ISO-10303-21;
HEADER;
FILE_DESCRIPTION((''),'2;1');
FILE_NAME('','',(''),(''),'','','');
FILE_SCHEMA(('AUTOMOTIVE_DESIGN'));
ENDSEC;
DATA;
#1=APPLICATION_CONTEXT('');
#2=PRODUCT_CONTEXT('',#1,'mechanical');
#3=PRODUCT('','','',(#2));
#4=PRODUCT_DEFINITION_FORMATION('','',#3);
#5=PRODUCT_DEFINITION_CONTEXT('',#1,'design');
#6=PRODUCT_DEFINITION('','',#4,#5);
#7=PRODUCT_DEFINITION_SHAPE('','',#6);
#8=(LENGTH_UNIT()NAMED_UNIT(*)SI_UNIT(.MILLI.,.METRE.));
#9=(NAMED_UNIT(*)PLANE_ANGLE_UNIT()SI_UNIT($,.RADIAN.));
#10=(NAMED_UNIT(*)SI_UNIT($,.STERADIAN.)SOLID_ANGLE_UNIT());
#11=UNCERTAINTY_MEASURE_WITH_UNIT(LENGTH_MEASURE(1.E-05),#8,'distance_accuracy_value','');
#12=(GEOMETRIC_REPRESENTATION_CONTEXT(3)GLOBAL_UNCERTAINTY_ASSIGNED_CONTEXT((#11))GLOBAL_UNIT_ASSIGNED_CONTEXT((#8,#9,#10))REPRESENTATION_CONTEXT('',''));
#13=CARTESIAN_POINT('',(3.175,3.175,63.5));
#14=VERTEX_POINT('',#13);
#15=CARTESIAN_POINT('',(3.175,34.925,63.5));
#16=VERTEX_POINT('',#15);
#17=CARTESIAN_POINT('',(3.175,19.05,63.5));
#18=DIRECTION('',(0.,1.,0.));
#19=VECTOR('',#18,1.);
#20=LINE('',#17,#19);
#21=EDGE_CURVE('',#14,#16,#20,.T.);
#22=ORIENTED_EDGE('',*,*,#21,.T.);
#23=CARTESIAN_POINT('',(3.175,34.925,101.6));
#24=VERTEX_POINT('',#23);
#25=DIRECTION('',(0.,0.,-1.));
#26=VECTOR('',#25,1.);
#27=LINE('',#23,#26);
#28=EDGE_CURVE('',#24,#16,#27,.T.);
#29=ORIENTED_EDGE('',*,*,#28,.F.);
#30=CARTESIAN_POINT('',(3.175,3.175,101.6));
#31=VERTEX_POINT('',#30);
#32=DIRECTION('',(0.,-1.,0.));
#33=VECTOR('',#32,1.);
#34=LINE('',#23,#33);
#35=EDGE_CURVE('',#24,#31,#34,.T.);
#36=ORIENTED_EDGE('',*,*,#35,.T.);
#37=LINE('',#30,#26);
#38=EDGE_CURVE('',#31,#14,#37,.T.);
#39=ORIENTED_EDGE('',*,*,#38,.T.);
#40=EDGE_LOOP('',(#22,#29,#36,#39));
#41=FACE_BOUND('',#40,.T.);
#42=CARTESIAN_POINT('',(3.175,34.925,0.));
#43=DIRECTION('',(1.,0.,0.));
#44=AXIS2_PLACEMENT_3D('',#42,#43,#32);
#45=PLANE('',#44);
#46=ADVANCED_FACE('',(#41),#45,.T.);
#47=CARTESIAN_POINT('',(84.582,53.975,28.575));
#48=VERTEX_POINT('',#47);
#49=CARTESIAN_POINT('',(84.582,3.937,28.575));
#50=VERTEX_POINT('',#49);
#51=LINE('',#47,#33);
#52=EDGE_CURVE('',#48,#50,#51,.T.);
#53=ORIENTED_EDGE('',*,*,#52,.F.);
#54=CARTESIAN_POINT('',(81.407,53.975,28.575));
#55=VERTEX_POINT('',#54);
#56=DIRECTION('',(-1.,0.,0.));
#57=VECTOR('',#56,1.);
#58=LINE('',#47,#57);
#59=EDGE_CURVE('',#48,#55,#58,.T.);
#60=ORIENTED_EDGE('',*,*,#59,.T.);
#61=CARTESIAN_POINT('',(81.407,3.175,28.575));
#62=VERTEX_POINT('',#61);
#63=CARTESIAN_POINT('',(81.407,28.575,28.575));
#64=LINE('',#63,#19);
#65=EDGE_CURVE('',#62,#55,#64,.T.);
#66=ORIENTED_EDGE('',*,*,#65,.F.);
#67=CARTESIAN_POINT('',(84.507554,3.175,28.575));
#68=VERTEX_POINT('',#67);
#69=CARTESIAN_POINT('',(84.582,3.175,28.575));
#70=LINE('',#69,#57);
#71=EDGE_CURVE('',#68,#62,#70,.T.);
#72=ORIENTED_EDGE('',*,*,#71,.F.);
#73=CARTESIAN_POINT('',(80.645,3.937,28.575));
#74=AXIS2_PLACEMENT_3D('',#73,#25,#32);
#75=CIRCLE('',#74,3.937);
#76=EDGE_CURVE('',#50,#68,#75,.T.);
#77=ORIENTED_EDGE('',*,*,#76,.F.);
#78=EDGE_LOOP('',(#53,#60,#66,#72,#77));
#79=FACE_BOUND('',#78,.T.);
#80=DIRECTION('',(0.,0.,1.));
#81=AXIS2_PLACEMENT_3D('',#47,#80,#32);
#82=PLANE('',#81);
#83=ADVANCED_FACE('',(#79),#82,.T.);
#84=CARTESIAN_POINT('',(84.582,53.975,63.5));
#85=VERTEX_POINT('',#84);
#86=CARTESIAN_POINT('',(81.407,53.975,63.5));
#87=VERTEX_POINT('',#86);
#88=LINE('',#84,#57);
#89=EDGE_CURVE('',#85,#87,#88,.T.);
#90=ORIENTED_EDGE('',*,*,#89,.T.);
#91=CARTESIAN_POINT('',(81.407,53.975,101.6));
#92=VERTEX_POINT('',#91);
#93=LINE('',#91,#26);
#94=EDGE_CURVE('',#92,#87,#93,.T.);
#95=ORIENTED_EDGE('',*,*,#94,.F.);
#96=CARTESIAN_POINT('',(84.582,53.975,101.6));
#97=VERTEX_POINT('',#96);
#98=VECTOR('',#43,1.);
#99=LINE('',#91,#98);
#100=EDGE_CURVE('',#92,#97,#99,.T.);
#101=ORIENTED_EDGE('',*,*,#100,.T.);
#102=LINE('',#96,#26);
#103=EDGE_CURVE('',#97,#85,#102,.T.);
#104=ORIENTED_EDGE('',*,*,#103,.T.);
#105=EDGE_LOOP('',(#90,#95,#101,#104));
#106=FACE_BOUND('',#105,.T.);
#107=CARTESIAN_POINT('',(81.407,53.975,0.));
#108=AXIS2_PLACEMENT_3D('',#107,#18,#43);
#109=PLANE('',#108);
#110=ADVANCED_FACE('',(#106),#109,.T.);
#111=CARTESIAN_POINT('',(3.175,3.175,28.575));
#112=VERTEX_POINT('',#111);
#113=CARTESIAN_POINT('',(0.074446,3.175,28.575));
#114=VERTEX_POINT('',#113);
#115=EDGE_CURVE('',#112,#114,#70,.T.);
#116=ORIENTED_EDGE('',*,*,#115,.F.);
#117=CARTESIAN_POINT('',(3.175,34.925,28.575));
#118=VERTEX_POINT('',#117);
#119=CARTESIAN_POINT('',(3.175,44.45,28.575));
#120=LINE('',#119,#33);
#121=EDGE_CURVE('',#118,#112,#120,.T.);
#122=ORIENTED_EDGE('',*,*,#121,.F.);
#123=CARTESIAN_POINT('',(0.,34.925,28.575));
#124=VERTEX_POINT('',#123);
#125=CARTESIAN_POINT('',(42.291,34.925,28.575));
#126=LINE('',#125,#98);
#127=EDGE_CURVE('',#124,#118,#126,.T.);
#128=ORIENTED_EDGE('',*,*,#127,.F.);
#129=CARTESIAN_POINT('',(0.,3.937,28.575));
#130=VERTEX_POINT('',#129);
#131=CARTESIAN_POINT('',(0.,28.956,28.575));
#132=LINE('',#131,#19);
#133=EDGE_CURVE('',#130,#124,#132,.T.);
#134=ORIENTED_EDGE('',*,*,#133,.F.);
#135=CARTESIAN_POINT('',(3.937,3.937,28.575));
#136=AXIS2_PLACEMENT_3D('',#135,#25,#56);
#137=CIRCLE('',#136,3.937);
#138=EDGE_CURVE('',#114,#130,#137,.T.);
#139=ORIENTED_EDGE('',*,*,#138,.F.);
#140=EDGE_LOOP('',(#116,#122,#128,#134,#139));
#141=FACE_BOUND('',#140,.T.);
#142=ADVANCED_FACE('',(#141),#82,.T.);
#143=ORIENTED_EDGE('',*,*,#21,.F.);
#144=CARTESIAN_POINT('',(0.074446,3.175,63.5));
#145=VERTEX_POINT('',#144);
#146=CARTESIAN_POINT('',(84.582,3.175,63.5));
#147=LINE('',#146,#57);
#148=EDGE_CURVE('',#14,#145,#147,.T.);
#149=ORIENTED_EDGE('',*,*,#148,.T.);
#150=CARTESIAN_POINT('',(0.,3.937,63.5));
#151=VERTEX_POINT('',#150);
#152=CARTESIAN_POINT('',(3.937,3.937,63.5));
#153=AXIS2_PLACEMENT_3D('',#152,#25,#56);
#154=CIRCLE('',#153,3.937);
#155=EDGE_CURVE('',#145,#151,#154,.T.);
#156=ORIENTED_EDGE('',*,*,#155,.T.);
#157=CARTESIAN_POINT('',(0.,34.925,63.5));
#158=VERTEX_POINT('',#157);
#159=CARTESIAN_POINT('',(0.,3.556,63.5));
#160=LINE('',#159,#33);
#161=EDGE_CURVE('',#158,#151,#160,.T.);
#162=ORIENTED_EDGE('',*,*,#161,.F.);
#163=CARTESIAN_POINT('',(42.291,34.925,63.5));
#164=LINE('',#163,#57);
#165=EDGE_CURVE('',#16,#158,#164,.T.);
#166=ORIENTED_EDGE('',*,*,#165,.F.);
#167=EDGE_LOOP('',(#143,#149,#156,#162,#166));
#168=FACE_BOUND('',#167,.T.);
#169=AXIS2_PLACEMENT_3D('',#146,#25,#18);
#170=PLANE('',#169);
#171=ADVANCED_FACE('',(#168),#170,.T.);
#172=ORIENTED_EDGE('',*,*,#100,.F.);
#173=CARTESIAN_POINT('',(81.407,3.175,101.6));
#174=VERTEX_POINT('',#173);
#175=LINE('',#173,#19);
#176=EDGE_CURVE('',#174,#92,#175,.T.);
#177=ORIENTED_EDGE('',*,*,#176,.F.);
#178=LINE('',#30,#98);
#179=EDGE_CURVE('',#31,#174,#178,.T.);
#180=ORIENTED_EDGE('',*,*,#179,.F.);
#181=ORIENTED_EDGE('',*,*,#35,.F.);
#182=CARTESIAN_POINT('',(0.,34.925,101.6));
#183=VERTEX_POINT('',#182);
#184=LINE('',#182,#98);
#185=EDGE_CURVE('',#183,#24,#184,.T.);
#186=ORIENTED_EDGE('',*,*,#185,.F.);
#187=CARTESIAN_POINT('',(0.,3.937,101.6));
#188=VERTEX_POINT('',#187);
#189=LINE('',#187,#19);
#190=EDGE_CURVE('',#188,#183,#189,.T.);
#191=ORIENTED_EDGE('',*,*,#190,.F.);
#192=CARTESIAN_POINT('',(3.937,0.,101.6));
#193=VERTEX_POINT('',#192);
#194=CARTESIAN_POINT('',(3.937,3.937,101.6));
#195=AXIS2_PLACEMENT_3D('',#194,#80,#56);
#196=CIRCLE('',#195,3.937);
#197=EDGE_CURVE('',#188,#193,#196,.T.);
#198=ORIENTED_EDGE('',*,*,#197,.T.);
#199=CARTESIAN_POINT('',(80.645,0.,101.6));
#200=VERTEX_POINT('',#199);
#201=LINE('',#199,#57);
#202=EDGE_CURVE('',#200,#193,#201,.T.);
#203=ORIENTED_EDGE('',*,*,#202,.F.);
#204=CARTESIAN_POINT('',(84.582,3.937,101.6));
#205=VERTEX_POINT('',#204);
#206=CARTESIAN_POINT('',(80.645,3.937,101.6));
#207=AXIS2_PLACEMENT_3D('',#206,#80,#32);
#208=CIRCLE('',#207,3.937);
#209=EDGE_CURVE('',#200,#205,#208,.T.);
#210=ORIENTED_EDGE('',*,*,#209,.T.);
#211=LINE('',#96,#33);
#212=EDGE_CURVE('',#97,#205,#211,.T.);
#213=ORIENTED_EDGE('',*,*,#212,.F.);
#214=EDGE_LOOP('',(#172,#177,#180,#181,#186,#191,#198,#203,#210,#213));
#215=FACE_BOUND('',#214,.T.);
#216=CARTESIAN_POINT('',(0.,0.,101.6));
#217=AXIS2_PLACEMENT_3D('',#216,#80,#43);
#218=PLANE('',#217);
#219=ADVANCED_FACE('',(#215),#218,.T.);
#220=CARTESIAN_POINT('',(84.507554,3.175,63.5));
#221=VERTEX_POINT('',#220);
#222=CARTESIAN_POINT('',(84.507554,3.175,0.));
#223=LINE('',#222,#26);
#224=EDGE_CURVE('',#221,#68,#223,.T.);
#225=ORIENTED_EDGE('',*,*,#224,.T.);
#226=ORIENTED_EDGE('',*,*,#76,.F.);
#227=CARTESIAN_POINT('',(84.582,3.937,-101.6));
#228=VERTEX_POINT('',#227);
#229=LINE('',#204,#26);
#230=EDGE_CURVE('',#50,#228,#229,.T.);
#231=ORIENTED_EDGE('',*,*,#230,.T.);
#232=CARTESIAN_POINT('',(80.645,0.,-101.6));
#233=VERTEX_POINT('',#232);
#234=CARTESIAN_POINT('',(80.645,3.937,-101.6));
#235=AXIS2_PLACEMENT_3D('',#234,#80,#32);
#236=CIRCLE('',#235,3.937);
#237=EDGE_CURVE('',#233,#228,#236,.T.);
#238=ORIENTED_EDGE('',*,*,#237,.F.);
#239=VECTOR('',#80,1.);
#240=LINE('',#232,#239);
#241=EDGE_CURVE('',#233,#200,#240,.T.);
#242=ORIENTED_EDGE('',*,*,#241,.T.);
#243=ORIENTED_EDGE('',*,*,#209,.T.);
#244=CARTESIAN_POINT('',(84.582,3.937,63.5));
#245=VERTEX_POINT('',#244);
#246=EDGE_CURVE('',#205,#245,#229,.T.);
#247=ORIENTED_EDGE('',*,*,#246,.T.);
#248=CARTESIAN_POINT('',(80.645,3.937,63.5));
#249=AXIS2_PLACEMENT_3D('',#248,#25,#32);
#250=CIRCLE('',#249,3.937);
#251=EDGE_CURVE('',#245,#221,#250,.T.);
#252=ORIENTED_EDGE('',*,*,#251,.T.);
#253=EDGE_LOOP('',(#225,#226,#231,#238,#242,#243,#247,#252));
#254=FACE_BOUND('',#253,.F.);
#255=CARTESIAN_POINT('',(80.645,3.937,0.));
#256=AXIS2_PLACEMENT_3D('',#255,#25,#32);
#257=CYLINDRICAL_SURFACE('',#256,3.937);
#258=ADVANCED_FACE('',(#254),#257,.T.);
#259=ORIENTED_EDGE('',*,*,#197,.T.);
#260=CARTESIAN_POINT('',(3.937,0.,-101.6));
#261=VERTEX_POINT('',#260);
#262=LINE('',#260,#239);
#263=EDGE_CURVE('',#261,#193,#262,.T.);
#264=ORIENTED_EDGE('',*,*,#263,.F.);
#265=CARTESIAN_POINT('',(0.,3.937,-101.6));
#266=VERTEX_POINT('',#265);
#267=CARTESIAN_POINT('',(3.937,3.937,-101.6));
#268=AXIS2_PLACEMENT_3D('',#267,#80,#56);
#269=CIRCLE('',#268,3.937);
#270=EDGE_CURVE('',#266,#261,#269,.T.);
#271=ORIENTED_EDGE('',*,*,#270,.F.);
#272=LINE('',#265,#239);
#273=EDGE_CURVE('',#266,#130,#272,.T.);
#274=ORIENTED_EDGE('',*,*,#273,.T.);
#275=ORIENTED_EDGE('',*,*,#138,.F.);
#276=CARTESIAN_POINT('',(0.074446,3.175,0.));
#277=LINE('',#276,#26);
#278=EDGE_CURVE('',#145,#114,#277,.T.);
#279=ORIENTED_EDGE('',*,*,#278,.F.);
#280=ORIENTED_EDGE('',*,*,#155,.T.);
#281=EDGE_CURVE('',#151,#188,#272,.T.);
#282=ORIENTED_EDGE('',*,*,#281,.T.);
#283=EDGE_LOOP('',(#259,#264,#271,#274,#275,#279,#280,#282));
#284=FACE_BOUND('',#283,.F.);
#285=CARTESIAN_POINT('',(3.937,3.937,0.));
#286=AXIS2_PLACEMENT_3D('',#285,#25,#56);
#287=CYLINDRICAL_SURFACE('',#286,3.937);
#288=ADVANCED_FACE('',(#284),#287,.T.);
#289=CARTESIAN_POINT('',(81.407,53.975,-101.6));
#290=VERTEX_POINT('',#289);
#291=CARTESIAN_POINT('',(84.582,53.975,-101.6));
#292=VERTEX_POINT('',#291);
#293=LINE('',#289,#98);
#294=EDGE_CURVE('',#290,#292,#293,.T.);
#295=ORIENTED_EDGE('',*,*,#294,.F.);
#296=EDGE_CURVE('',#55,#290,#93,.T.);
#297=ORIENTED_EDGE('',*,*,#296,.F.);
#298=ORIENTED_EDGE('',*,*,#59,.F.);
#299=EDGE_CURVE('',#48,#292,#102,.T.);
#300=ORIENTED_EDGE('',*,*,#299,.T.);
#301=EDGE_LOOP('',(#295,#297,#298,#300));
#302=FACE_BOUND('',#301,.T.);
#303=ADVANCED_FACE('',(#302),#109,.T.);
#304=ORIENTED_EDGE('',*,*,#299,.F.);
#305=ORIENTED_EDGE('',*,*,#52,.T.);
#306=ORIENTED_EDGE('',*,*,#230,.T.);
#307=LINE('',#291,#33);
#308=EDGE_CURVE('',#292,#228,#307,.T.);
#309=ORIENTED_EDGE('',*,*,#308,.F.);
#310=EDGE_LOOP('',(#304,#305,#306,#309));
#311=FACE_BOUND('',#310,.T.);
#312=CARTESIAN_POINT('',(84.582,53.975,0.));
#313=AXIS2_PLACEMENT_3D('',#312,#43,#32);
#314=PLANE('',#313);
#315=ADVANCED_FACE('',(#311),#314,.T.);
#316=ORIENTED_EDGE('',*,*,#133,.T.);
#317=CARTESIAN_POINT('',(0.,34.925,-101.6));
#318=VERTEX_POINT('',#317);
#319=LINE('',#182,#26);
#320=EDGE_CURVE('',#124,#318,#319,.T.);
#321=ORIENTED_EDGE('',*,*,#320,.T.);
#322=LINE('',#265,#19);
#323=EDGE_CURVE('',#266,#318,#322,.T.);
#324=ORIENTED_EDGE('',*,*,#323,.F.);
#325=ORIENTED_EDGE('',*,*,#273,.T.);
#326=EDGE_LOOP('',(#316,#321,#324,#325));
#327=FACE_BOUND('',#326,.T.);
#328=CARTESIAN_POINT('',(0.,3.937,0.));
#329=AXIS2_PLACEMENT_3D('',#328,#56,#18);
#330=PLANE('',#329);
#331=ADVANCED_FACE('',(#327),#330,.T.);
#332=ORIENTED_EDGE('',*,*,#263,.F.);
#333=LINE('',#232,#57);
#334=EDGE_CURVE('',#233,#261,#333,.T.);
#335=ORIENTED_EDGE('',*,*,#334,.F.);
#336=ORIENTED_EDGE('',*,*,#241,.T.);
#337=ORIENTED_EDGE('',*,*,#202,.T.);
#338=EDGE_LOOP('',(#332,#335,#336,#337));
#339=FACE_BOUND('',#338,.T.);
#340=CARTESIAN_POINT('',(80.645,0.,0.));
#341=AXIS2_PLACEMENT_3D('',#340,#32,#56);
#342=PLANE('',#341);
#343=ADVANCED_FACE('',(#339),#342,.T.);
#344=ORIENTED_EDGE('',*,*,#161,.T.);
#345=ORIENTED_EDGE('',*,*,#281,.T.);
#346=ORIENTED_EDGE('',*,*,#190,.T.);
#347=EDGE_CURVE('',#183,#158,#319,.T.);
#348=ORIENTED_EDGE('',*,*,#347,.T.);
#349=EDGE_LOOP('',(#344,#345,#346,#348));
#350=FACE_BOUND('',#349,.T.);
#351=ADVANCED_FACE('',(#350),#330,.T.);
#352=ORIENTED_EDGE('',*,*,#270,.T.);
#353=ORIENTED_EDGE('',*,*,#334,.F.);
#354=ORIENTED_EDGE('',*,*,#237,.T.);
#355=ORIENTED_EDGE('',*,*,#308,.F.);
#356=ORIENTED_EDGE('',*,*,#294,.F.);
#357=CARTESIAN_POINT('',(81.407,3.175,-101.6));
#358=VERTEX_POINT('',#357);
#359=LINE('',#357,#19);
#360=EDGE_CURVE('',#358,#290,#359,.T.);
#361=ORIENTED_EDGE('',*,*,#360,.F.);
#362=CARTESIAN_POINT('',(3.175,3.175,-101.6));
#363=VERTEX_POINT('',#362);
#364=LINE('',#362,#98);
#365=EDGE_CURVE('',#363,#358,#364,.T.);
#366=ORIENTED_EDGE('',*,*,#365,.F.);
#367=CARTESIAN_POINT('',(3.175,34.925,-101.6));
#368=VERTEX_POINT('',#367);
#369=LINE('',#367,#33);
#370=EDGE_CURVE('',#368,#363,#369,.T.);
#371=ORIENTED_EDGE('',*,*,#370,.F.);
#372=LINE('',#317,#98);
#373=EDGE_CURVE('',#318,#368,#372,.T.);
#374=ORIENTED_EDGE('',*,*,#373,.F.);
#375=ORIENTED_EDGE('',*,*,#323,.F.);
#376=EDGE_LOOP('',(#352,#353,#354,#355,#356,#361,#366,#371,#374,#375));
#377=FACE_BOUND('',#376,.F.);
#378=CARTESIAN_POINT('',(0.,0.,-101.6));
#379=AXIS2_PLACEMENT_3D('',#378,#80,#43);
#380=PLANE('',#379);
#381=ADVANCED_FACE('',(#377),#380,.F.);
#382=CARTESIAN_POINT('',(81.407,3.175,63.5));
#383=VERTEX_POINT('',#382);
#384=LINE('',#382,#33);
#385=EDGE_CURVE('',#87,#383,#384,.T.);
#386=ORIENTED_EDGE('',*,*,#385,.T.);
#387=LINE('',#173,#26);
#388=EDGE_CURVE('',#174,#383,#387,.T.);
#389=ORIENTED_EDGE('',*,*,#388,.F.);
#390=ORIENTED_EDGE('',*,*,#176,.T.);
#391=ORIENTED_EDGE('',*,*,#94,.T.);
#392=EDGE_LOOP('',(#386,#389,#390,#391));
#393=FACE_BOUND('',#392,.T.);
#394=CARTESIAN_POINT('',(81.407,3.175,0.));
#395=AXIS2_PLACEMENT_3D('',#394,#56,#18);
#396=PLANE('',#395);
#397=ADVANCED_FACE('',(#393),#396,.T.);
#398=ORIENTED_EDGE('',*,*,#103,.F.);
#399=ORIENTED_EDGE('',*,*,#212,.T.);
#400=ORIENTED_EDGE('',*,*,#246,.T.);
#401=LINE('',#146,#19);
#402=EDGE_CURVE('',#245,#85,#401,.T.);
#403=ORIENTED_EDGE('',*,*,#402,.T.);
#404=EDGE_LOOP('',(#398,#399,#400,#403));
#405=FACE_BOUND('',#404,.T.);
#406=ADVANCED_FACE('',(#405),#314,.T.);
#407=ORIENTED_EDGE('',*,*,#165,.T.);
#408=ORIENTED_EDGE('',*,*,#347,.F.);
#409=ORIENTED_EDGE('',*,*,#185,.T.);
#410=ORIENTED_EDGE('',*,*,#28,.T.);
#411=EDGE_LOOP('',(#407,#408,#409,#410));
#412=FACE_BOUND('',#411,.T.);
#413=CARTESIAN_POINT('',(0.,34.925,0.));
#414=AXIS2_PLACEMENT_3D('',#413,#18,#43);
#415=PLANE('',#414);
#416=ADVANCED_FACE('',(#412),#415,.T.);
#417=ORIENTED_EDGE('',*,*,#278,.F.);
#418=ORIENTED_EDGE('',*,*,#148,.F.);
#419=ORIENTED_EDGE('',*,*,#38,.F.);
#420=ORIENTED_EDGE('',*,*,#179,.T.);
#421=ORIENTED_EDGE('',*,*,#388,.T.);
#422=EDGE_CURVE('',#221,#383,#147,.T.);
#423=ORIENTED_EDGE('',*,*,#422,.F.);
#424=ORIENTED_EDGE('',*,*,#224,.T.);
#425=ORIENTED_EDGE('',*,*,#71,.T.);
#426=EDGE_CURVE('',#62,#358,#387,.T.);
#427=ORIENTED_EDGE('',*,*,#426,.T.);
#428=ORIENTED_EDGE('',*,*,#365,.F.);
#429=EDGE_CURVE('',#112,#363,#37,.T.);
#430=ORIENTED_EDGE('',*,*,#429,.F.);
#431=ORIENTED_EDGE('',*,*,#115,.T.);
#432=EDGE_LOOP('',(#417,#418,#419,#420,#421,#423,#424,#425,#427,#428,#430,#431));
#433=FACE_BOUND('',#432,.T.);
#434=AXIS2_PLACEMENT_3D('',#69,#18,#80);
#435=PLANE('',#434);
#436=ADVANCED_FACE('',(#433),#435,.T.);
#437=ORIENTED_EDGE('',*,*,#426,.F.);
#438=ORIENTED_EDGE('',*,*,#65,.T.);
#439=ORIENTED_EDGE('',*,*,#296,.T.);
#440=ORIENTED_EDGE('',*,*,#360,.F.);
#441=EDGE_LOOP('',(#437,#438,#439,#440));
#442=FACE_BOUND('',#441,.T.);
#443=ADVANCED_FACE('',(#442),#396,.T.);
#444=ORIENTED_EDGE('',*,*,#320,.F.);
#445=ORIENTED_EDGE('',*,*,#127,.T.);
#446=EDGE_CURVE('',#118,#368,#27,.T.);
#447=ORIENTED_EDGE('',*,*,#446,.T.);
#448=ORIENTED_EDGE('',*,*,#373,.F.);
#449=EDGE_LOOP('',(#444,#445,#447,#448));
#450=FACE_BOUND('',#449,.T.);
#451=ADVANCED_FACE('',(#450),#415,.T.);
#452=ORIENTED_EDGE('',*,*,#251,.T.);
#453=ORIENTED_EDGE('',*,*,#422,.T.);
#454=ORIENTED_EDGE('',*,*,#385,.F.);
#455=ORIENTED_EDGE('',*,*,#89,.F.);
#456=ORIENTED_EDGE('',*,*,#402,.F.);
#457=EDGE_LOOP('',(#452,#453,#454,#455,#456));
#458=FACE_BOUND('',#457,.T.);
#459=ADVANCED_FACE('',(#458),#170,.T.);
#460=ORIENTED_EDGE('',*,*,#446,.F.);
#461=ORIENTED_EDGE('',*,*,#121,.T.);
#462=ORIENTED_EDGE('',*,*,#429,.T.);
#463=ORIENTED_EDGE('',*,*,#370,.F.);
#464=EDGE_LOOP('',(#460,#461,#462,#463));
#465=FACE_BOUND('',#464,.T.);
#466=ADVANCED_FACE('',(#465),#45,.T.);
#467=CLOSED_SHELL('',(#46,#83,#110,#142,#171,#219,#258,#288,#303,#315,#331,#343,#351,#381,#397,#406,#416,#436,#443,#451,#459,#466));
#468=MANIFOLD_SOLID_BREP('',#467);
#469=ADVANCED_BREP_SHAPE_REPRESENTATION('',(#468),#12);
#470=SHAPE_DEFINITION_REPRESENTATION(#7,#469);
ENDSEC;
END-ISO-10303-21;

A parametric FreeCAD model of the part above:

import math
import FreeCAD as App
import Part
import Sketcher

V = App.Vector
Q = App.Units.Quantity


def add_polygon(sketch, points):
    """Adds a closed chain of lines whose ends are joined by coincident constraints."""
    first, n = sketch.GeometryCount, len(points)
    for a, b in zip(points, points[1:] + points[:1]):
        sketch.addGeometry(Part.LineSegment(App.Vector(*a, 0), App.Vector(*b, 0)), False)
    for i in range(n):
        sketch.addConstraint(Sketcher.Constraint("Coincident", first + i, 2, first + (i + 1) % n, 1))

doc = App.newDocument("Part")
body = doc.addObject("PartDesign::Body", "Body")

sketch1 = body.newObject("Sketcher::SketchObject", "Sketch")
sketch1.AttachmentSupport = (doc.getObject("XY_Plane"), [""])
sketch1.MapMode = "FlatFace"
sketch1.addGeometry(Part.LineSegment(V(0, 34.9, 0), V(0, 3.9, 0)), False)
sketch1.addGeometry(Part.ArcOfCircle(Part.Circle(V(3.9, 3.9, 0), V(0, 0, 1), 3.9), math.radians(180), math.radians(270)), False)
sketch1.addGeometry(Part.LineSegment(V(3.9, 0, 0), V(80.6, 0, 0)), False)
sketch1.addGeometry(Part.ArcOfCircle(Part.Circle(V(80.6, 3.9, 0), V(0, 0, 1), 3.9), math.radians(-90), math.radians(0)), False)
sketch1.addGeometry(Part.LineSegment(V(84.6, 3.9, 0), V(84.6, 54, 0)), False)
sketch1.addGeometry(Part.LineSegment(V(84.6, 54, 0), V(81.4, 54, 0)), False)
sketch1.addGeometry(Part.LineSegment(V(81.4, 54, 0), V(81.4, 3.2, 0)), False)
sketch1.addGeometry(Part.LineSegment(V(81.4, 3.2, 0), V(3.2, 3.2, 0)), False)
sketch1.addGeometry(Part.LineSegment(V(3.2, 3.2, 0), V(3.2, 34.9, 0)), False)
sketch1.addGeometry(Part.LineSegment(V(3.2, 34.9, 0), V(0, 34.9, 0)), False)
sketch1.addConstraint(Sketcher.Constraint("Tangent", 0, 2, 1, 1))
sketch1.addConstraint(Sketcher.Constraint("Tangent", 1, 2, 2, 1))
sketch1.addConstraint(Sketcher.Constraint("Tangent", 2, 2, 3, 1))
sketch1.addConstraint(Sketcher.Constraint("Tangent", 3, 2, 4, 1))
sketch1.addConstraint(Sketcher.Constraint("Coincident", 4, 2, 5, 1))
sketch1.addConstraint(Sketcher.Constraint("Coincident", 5, 2, 6, 1))
sketch1.addConstraint(Sketcher.Constraint("Coincident", 6, 2, 7, 1))
sketch1.addConstraint(Sketcher.Constraint("Coincident", 7, 2, 8, 1))
sketch1.addConstraint(Sketcher.Constraint("Coincident", 8, 2, 9, 1))
sketch1.addConstraint(Sketcher.Constraint("Coincident", 9, 2, 0, 1))
sketch1.addConstraint(Sketcher.Constraint("Vertical", 0))
sketch1.addConstraint(Sketcher.Constraint("Horizontal", 2))
sketch1.addConstraint(Sketcher.Constraint("Vertical", 4))
sketch1.addConstraint(Sketcher.Constraint("Horizontal", 5))
sketch1.addConstraint(Sketcher.Constraint("Vertical", 6))
sketch1.addConstraint(Sketcher.Constraint("Horizontal", 7))
sketch1.addConstraint(Sketcher.Constraint("Vertical", 8))
sketch1.addConstraint(Sketcher.Constraint("Horizontal", 9))
sketch1.addConstraint(Sketcher.Constraint("Equal", 1, 3))
sketch1.addConstraint(Sketcher.Constraint("PointOnObject", 0, 2, -2))
sketch1.addConstraint(Sketcher.Constraint("PointOnObject", 1, 2, -1))
sketch1.addConstraint(Sketcher.Constraint("Equal", 5, 9))
sketch1.addConstraint(Sketcher.Constraint("DistanceY", 6, 2, 6, 1, Q("2 in")))
sketch1.addConstraint(Sketcher.Constraint("Radius", 1, Q("0.155 in")))
sketch1.addConstraint(Sketcher.Constraint("DistanceX", 7, 2, 7, 1, Q("3.08 in")))
sketch1.addConstraint(Sketcher.Constraint("DistanceY", 8, 1, 8, 2, Q("1.25 in")))
sketch1.addConstraint(Sketcher.Constraint("DistanceX", 5, 2, 5, 1, Q("0.125 in")))
sketch1.addConstraint(Sketcher.Constraint("DistanceY", -1, 1, 6, 2, Q("0.125 in")))
pad1 = body.newObject("PartDesign::Pad", "Pad")
pad1.Profile = sketch1
pad1.Length = Q("8 in")
pad1.Midplane = True

sketch2 = body.newObject("Sketcher::SketchObject", "Sketch001")
sketch2.AttachmentSupport = (doc.getObject("YZ_Plane"), [""])
sketch2.MapMode = "FlatFace"
sketch2.AttachmentOffset = App.Placement(V(0, 0, 3.33 * 25.4), App.Rotation())
add_polygon(sketch2, [(3, 64), (3, 29), (54, 29), (54, 64)])
sketch2.addConstraint(Sketcher.Constraint("Vertical", 0))
sketch2.addConstraint(Sketcher.Constraint("Horizontal", 1))
sketch2.addConstraint(Sketcher.Constraint("Vertical", 2))
sketch2.addConstraint(Sketcher.Constraint("Horizontal", 3))
sketch2.addConstraint(Sketcher.Constraint("DistanceX", 1, 1, 1, 2, Q("2 in")))
sketch2.addConstraint(Sketcher.Constraint("DistanceY", 0, 2, 0, 1, Q("1.375 in")))
sketch2.addConstraint(Sketcher.Constraint("DistanceY", -1, 1, 2, 2, Q("2.5 in")))
sketch2.addConstraint(Sketcher.Constraint("DistanceX", -1, 1, 0, 2, Q("0.125 in")))
pocket1 = body.newObject("PartDesign::Pocket", "Pocket")
pocket1.Profile = sketch2
pocket1.Type = "ThroughAll"

doc.recompute()
